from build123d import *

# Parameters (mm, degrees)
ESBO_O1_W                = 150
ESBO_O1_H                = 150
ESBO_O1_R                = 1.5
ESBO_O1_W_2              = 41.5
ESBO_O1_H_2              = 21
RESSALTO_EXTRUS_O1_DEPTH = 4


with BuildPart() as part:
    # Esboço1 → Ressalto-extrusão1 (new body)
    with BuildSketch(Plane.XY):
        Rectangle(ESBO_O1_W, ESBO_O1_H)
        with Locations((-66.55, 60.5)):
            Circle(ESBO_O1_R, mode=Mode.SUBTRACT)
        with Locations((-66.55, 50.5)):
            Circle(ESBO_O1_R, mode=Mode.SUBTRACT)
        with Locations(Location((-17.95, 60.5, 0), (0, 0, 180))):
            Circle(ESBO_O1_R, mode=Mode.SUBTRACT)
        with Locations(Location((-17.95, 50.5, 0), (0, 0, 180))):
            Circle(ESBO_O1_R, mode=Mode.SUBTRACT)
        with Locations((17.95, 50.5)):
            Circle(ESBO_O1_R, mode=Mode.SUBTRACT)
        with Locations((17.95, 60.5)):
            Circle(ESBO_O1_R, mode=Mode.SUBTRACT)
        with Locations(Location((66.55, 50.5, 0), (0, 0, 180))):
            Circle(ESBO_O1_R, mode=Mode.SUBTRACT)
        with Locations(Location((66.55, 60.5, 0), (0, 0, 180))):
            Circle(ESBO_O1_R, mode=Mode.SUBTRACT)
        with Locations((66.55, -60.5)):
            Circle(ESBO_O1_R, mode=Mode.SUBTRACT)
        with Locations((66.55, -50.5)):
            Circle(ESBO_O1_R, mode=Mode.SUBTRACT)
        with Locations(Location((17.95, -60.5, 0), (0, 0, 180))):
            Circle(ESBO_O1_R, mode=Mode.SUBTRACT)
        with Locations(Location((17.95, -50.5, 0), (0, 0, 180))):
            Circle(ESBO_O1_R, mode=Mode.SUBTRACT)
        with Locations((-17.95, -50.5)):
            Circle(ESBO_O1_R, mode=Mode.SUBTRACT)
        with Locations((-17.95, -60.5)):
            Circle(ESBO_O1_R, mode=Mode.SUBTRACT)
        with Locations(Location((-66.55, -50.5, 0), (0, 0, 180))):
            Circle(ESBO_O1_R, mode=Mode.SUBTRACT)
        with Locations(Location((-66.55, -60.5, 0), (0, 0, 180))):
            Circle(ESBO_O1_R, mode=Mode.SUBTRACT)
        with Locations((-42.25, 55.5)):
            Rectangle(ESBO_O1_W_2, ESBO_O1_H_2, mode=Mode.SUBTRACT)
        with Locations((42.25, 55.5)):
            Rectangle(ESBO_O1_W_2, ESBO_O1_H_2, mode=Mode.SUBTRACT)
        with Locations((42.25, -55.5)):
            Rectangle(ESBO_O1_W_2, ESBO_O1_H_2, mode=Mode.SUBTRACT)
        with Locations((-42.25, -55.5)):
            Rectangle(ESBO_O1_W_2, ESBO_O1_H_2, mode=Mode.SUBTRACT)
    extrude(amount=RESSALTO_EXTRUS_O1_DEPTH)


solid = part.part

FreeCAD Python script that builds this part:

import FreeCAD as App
import Part
import Sketcher

V = App.Vector
Q = App.Units.Quantity

doc = App.newDocument("Part")
body = doc.addObject("PartDesign::Body", "Body")

# Sketch on XY plane
sketch1 = doc.addObject("Sketcher::SketchObject", "Sketch")
body.addObject(sketch1)
sketch1.AttachmentSupport = (doc.XY_Plane, [""])
sketch1.MapMode = "FlatFace"
sketch1.addGeometry([
    Part.LineSegment(V(-75, 75, 0), V(-75, -75, 0)),  # 0
    Part.LineSegment(V(-75, -75, 0), V(75, -75, 0)),  # 1
    Part.LineSegment(V(75, -75, 0), V(75, 75, 0)),  # 2
    Part.LineSegment(V(75, 75, 0), V(-75, 75, 0)),  # 3
    Part.Circle(V(-66.5, -60.5, 0), V(0, 0, 1), 1.5),  # 4
    Part.Circle(V(-66.5, -50.5, 0), V(0, 0, 1), 1.5),  # 5
    Part.LineSegment(V(-21.5, -66, 0), V(-63, -66, 0)),  # 6
    Part.LineSegment(V(-63, -66, 0), V(-63, -45, 0)),  # 7
    Part.LineSegment(V(-63, -45, 0), V(-21.5, -45, 0)),  # 8
    Part.LineSegment(V(-21.5, -45, 0), V(-21.5, -66, 0)),  # 9
    Part.Circle(V(-17.9, -60.5, 0), V(0, 0, 1), 1.5),  # 10
    Part.Circle(V(-17.9, -50.5, 0), V(0, 0, 1), 1.5),  # 11
    Part.Circle(V(17.9, -60.5, 0), V(0, 0, 1), 1.5),  # 12
    Part.Circle(V(17.9, -50.5, 0), V(0, 0, 1), 1.5),  # 13
    Part.LineSegment(V(63, -66, 0), V(21.5, -66, 0)),  # 14
    Part.LineSegment(V(21.5, -66, 0), V(21.5, -45, 0)),  # 15
    Part.LineSegment(V(21.5, -45, 0), V(63, -45, 0)),  # 16
    Part.LineSegment(V(63, -45, 0), V(63, -66, 0)),  # 17
    Part.Circle(V(66.5, -60.5, 0), V(0, 0, 1), 1.5),  # 18
    Part.Circle(V(66.5, -50.5, 0), V(0, 0, 1), 1.5),  # 19
    Part.Circle(V(-66.5, 50.5, 0), V(0, 0, 1), 1.5),  # 20
    Part.Circle(V(-66.5, 60.5, 0), V(0, 0, 1), 1.5),  # 21
    Part.LineSegment(V(-21.5, 45, 0), V(-63, 45, 0)),  # 22
    Part.LineSegment(V(-63, 45, 0), V(-63, 66, 0)),  # 23
    Part.LineSegment(V(-63, 66, 0), V(-21.5, 66, 0)),  # 24
    Part.LineSegment(V(-21.5, 66, 0), V(-21.5, 45, 0)),  # 25
    Part.Circle(V(-17.9, 50.5, 0), V(0, 0, 1), 1.5),  # 26
    Part.Circle(V(-17.9, 60.5, 0), V(0, 0, 1), 1.5),  # 27
    Part.Circle(V(17.9, 50.5, 0), V(0, 0, 1), 1.5),  # 28
    Part.Circle(V(17.9, 60.5, 0), V(0, 0, 1), 1.5),  # 29
    Part.LineSegment(V(63, 45, 0), V(21.5, 45, 0)),  # 30
    Part.LineSegment(V(21.5, 45, 0), V(21.5, 66, 0)),  # 31
    Part.LineSegment(V(21.5, 66, 0), V(63, 66, 0)),  # 32
    Part.LineSegment(V(63, 66, 0), V(63, 45, 0)),  # 33
    Part.Circle(V(66.5, 50.5, 0), V(0, 0, 1), 1.5),  # 34
    Part.Circle(V(66.5, 60.5, 0), V(0, 0, 1), 1.5),  # 35
], False)
sketch1.addConstraint([
    Sketcher.Constraint("Coincident", 0, 2, 1, 1),
    Sketcher.Constraint("Coincident", 1, 2, 2, 1),
    Sketcher.Constraint("Coincident", 2, 2, 3, 1),
    Sketcher.Constraint("Coincident", 3, 2, 0, 1),
    Sketcher.Constraint("Coincident", 6, 2, 7, 1),
    Sketcher.Constraint("Coincident", 7, 2, 8, 1),
    Sketcher.Constraint("Coincident", 8, 2, 9, 1),
    Sketcher.Constraint("Coincident", 9, 2, 6, 1),
    Sketcher.Constraint("Coincident", 14, 2, 15, 1),
    Sketcher.Constraint("Coincident", 15, 2, 16, 1),
    Sketcher.Constraint("Coincident", 16, 2, 17, 1),
    Sketcher.Constraint("Coincident", 17, 2, 14, 1),
    Sketcher.Constraint("Coincident", 22, 2, 23, 1),
    Sketcher.Constraint("Coincident", 23, 2, 24, 1),
    Sketcher.Constraint("Coincident", 24, 2, 25, 1),
    Sketcher.Constraint("Coincident", 25, 2, 22, 1),
    Sketcher.Constraint("Coincident", 30, 2, 31, 1),
    Sketcher.Constraint("Coincident", 31, 2, 32, 1),
    Sketcher.Constraint("Coincident", 32, 2, 33, 1),
    Sketcher.Constraint("Coincident", 33, 2, 30, 1),
    Sketcher.Constraint("Vertical", 0),
    Sketcher.Constraint("Horizontal", 1),
    Sketcher.Constraint("Vertical", 2),
    Sketcher.Constraint("Horizontal", 3),
    Sketcher.Constraint("Horizontal", 6),
    Sketcher.Constraint("Vertical", 7),
    Sketcher.Constraint("Horizontal", 8),
    Sketcher.Constraint("Vertical", 9),
    Sketcher.Constraint("Horizontal", 14),
    Sketcher.Constraint("Vertical", 15),
    Sketcher.Constraint("Horizontal", 16),
    Sketcher.Constraint("Vertical", 17),
    Sketcher.Constraint("Horizontal", 22),
    Sketcher.Constraint("Vertical", 23),
    Sketcher.Constraint("Horizontal", 24),
    Sketcher.Constraint("Vertical", 25),
    Sketcher.Constraint("Horizontal", 30),
    Sketcher.Constraint("Vertical", 31),
    Sketcher.Constraint("Horizontal", 32),
    Sketcher.Constraint("Vertical", 33),
    Sketcher.Constraint("Equal", 4, 5),
    Sketcher.Constraint("Equal", 5, 10),
    Sketcher.Constraint("Equal", 10, 11),
    Sketcher.Constraint("Equal", 11, 12),
    Sketcher.Constraint("Equal", 12, 13),
    Sketcher.Constraint("Equal", 13, 18),
    Sketcher.Constraint("Equal", 18, 19),
    Sketcher.Constraint("Equal", 19, 20),
    Sketcher.Constraint("Equal", 20, 21),
    Sketcher.Constraint("Equal", 21, 26),
    Sketcher.Constraint("Equal", 26, 27),
    Sketcher.Constraint("Equal", 27, 28),
    Sketcher.Constraint("Equal", 28, 29),
    Sketcher.Constraint("Equal", 29, 34),
    Sketcher.Constraint("Equal", 34, 35),
    Sketcher.Constraint("Symmetric", 19, 3, 20, 3, -1, 1),
    Sketcher.Constraint("Symmetric", 18, 3, 21, 3, -1, 1),
    Sketcher.Constraint("Symmetric", 13, 3, 26, 3, -1, 1),
    Sketcher.Constraint("Symmetric", 12, 3, 27, 3, -1, 1),
    Sketcher.Constraint("Symmetric", 11, 3, 28, 3, -1, 1),
    Sketcher.Constraint("Symmetric", 10, 3, 29, 3, -1, 1),
    Sketcher.Constraint("Symmetric", 5, 3, 34, 3, -1, 1),
    Sketcher.Constraint("Symmetric", 4, 3, 35, 3, -1, 1),
    Sketcher.Constraint("Symmetric", 0, 2, 2, 2, -1, 1),
    Sketcher.Constraint("Symmetric", 16, 2, 22, 2, -1, 1),
    Sketcher.Constraint("Symmetric", 14, 2, 24, 2, -1, 1),
    Sketcher.Constraint("Symmetric", 8, 2, 30, 2, -1, 1),
    Sketcher.Constraint("Symmetric", 6, 2, 32, 2, -1, 1),
    Sketcher.Constraint("Symmetric", 10, 3, 12, 3, -2),
    Sketcher.Constraint("Symmetric", 11, 3, 13, 3, -2),
    Sketcher.Constraint("Symmetric", 4, 3, 18, 3, -2),
    Sketcher.Constraint("Symmetric", 5, 3, 19, 3, -2),
    Sketcher.Constraint("Symmetric", 9, 2, 14, 2, -2),
    Sketcher.Constraint("Symmetric", 7, 2, 16, 2, -2),
    Sketcher.Constraint("Horizontal", 4, 3, 10, 3),
    Sketcher.Constraint("Horizontal", 5, 3, 11, 3),
    Sketcher.Constraint("Vertical", 4, 3, 5, 3),
    Sketcher.Constraint("Vertical", 10, 3, 11, 3),
    Sketcher.Constraint("Equal", 3, 0),
    Sketcher.Constraint("Diameter", 4, Q("3 mm")),
    Sketcher.Constraint("DistanceX", 1, 1, 1, 2, Q("150 mm")),
    Sketcher.Constraint("DistanceY", 7, 1, 7, 2, Q("21 mm")),
    Sketcher.Constraint("DistanceX", 6, 2, 6, 1, Q("41.5 mm")),
    Sketcher.Constraint("DistanceX", 6, 2, -1, 1, Q("63 mm")),
    Sketcher.Constraint("DistanceY", 6, 2, -1, 1, Q("66 mm")),
    Sketcher.Constraint("DistanceY", 4, 3, 5, 3, Q("10 mm")),
    Sketcher.Constraint("DistanceY", 5, 3, 20, 3, Q("101 mm")),
    Sketcher.Constraint("DistanceX", 4, 3, 10, 3, Q("48.6 mm")),
    Sketcher.Constraint("DistanceX", 10, 3, 12, 3, Q("35.9 mm")),
])
pad1 = doc.addObject("PartDesign::Pad", "Pad")
body.addObject(pad1)
pad1.Profile = sketch1
pad1.Length = 4

doc.recompute()
